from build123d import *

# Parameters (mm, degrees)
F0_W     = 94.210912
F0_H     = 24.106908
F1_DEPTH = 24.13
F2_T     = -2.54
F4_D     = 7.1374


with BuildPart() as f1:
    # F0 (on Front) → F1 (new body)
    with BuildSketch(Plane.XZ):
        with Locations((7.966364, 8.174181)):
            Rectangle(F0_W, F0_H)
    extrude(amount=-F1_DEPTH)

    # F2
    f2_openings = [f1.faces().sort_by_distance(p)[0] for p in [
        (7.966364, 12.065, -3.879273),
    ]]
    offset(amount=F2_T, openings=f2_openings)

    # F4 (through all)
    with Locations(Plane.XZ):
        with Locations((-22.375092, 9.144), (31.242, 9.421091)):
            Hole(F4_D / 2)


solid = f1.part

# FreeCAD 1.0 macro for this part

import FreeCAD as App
import Part
import Sketcher

V = App.Vector
Q = App.Units.Quantity


def faces_at(feature, points):
    """Names of the faces that lie closest to the given points."""
    faces = feature.Shape.Faces
    near = lambda p: min(range(len(faces)), key=lambda i: faces[i].distToShape(Part.Vertex(*p))[0])
    return sorted({f"Face{near(p) + 1}" for p in points})


def add_polygon(sketch, points):
    """Adds a closed chain of lines whose ends are joined by coincident constraints."""
    first, n = sketch.GeometryCount, len(points)
    for a, b in zip(points, points[1:] + points[:1]):
        sketch.addGeometry(Part.LineSegment(App.Vector(*a, 0), App.Vector(*b, 0)), False)
    for i in range(n):
        sketch.addConstraint(Sketcher.Constraint("Coincident", first + i, 2, first + (i + 1) % n, 1))

doc = App.newDocument("Part")
body = doc.addObject("PartDesign::Body", "Body")

sketch1 = body.newObject("Sketcher::SketchObject", "Sketch")
sketch1.AttachmentSupport = (doc.getObject("XZ_Plane"), [""])
sketch1.MapMode = "FlatFace"
add_polygon(sketch1, [(-39, 20), (-39, -4), (55, -4), (55, 20)])
sketch1.addConstraint([
    Sketcher.Constraint("Vertical", 0),
    Sketcher.Constraint("Horizontal", 1),
    Sketcher.Constraint("Vertical", 2),
    Sketcher.Constraint("Horizontal", 3),
    Sketcher.Constraint("DistanceY", 0, 2, 0, 1, 24.106908),
    Sketcher.Constraint("DistanceX", 1, 1, 1, 2, 94.210912),
    Sketcher.Constraint("DistanceX", 0, 2, -1, 1, 39.139092),
    Sketcher.Constraint("DistanceY", 0, 2, -1, 1, 3.879273),
])
pad1 = body.newObject("PartDesign::Pad", "Pad")
pad1.Profile = sketch1
pad1.Length = Q("0.95 in")
pad1.Reversed = True
doc.recompute()

thickness = body.newObject("PartDesign::Thickness", "Thickness")
thickness.Base = (pad1, faces_at(pad1, [(7.966, 12.065, -3.879)]))
thickness.Value = Q("0.1 in")
thickness.Reversed = True
thickness.Join = "Arc"

sketch2 = body.newObject("Sketcher::SketchObject", "Sketch001")
sketch2.AttachmentSupport = (doc.getObject("XZ_Plane"), [""])
sketch2.MapMode = "FlatFace"
sketch2.addGeometry([
    Part.Circle(V(-22.4, 9.1, 0), V(0, 0, 1), 3.6),
    Part.Circle(V(31.2, 9.4, 0), V(0, 0, 1), 3.6),
], False)
sketch2.addConstraint([
    Sketcher.Constraint("Equal", 0, 1),
    Sketcher.Constraint("Diameter", 0, Q("0.281 in")),
    Sketcher.Constraint("DistanceY", -1, 1, 0, 3, Q("0.36 in")),
    Sketcher.Constraint("DistanceX", -1, 1, 1, 3, Q("1.23 in")),
    Sketcher.Constraint("DistanceX", 0, 3, -1, 1, 22.375092),
    Sketcher.Constraint("DistanceY", -1, 1, 1, 3, 9.421091),
])
doc.recompute()
hole = body.newObject("PartDesign::Hole", "Hole")
hole.Profile = sketch2
hole.ThreadType = "None"
hole.Diameter = Q("0.281 in")
hole.DepthType = "ThroughAll"

doc.recompute()
